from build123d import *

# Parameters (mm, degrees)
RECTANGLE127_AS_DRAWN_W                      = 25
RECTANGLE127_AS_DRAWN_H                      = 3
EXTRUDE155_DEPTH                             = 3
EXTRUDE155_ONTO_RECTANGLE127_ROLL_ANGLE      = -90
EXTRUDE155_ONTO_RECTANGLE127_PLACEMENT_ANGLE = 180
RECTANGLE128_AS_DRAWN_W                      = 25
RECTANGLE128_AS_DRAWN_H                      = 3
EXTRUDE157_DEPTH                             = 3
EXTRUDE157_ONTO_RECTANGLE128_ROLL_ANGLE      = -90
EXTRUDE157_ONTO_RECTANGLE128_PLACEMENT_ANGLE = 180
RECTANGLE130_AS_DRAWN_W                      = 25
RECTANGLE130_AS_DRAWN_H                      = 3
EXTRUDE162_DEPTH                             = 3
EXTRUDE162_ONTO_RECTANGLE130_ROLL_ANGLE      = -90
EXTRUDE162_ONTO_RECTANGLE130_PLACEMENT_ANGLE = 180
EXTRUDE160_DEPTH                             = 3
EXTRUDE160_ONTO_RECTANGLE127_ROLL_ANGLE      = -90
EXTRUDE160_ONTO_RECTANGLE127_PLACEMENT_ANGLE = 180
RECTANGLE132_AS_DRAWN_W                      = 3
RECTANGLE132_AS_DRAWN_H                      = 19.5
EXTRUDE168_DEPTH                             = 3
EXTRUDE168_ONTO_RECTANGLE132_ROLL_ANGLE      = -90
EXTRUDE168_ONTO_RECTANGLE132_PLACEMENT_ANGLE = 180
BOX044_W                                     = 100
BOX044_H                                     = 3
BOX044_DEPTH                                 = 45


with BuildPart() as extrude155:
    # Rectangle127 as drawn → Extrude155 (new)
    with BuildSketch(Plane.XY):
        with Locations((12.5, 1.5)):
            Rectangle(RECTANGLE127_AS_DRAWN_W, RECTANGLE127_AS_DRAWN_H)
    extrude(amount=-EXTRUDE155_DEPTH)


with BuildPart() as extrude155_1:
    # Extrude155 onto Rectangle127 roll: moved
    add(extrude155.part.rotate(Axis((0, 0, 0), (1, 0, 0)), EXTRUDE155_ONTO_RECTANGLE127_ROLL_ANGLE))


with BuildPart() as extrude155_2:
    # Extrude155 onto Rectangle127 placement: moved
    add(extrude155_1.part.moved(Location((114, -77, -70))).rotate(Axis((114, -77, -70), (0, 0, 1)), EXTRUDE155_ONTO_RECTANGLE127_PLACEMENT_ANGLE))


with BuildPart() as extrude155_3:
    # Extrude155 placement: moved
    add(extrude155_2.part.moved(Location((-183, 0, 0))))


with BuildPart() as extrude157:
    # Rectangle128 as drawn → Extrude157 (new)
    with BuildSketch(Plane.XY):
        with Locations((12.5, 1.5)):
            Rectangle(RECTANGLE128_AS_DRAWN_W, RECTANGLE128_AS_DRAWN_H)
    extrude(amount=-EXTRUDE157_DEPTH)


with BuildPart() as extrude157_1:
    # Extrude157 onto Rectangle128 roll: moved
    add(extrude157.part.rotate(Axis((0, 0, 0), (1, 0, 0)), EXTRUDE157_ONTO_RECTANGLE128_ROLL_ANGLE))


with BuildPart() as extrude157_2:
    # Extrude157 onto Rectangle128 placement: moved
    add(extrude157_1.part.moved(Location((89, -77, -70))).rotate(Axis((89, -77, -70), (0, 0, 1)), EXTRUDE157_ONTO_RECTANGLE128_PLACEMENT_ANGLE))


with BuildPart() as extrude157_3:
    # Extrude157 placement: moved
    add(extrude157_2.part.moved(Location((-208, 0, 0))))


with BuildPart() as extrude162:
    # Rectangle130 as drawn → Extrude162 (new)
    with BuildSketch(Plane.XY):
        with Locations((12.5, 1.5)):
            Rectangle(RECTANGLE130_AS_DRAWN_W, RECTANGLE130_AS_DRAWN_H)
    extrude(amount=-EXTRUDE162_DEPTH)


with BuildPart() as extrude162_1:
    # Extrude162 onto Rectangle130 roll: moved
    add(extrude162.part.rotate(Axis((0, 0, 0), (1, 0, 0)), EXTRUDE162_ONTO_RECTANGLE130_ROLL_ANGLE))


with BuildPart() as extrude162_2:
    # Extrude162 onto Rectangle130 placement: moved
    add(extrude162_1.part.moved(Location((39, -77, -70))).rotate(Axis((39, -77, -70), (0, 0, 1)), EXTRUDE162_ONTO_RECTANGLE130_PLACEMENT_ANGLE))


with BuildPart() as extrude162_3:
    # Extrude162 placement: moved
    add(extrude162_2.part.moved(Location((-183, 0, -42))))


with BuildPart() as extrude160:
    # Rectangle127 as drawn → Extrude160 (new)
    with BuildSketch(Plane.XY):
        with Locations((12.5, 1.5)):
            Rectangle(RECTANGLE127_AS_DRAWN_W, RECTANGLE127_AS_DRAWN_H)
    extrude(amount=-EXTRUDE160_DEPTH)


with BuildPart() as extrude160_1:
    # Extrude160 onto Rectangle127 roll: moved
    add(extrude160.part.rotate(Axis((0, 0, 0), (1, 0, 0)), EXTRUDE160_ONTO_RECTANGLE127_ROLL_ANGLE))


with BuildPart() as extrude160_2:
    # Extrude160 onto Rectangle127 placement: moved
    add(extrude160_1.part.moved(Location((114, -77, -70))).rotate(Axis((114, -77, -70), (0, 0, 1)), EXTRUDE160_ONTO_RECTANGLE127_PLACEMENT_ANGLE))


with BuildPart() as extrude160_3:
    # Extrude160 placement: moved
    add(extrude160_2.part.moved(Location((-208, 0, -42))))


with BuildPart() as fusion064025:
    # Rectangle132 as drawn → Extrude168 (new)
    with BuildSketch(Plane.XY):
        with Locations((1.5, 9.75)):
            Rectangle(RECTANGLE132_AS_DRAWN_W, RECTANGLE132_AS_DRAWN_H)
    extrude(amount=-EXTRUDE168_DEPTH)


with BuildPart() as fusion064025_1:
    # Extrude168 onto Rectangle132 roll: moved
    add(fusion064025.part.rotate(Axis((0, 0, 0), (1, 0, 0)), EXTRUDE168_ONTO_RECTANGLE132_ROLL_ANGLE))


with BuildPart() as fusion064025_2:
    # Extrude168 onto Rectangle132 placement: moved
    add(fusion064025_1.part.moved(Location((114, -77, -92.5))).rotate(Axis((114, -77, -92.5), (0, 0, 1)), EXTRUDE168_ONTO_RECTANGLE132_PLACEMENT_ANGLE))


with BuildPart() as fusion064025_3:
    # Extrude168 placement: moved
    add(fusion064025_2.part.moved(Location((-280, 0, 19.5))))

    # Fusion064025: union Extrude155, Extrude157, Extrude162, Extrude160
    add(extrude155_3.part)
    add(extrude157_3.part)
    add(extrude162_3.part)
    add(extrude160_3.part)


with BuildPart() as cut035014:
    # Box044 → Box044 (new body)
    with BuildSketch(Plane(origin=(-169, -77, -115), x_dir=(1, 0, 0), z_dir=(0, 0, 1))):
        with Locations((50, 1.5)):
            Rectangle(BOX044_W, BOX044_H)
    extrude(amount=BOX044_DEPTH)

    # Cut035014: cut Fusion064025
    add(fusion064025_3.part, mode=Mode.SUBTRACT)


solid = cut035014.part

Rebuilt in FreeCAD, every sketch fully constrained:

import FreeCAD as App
import Part
import Sketcher

V = App.Vector
Q = App.Units.Quantity


def add_polygon(sketch, points):
    """Adds a closed chain of lines whose ends are joined by coincident constraints."""
    first, n = sketch.GeometryCount, len(points)
    for a, b in zip(points, points[1:] + points[:1]):
        sketch.addGeometry(Part.LineSegment(App.Vector(*a, 0), App.Vector(*b, 0)), False)
    for i in range(n):
        sketch.addConstraint(Sketcher.Constraint("Coincident", first + i, 2, first + (i + 1) % n, 1))

doc = App.newDocument("Part")
body = doc.addObject("PartDesign::Body", "Body")

# Sketch on XY plane
sketch1 = body.newObject("Sketcher::SketchObject", "Sketch")
sketch1.AttachmentSupport = (doc.getObject("XY_Plane"), [""])
sketch1.MapMode = "FlatFace"
add_polygon(sketch1, [(0, 3), (0, 0), (25, 0), (25, 3)])  # lines 0-3
sketch1.addConstraint(Sketcher.Constraint("Vertical", 0))
sketch1.addConstraint(Sketcher.Constraint("Horizontal", 1))
sketch1.addConstraint(Sketcher.Constraint("Vertical", 2))
sketch1.addConstraint(Sketcher.Constraint("Horizontal", 3))
sketch1.addConstraint(Sketcher.Constraint("Coincident", 0, 2, -1, 1))
sketch1.addConstraint(Sketcher.Constraint("DistanceX", 1, 1, 1, 2, Q("25 mm")))
sketch1.addConstraint(Sketcher.Constraint("DistanceY", 0, 2, 0, 1, Q("3 mm")))
pad1 = body.newObject("PartDesign::Pad", "Pad")
pad1.Profile = sketch1
pad1.Length = 3
pad1.Reversed = True
body2 = doc.addObject("PartDesign::Body", "Body001")
doc.recompute()

body.Placement = App.Placement(V(0, 0, 0), App.Rotation(V(1, 0, 0), 270))
boolean = body2.newObject("PartDesign::Boolean", "Boolean")
boolean.Type = "Fuse"
boolean.addObjects([body])
body3 = doc.addObject("PartDesign::Body", "Body002")
doc.recompute()

body2.Placement = App.Placement(V(114, -77, -70), App.Rotation(V(0, 0, 1), 180))
boolean2 = body3.newObject("PartDesign::Boolean", "Boolean001")
boolean2.Type = "Fuse"
boolean2.addObjects([body2])
body4 = doc.addObject("PartDesign::Body", "Body003")
doc.recompute()

body3.Placement = App.Placement(V(-183, 0, 0), App.Rotation(V(0, 0, 1), 0))
boolean3 = body4.newObject("PartDesign::Boolean", "Boolean002")
boolean3.Type = "Fuse"
boolean3.addObjects([body3])
body5 = doc.addObject("PartDesign::Body", "Body004")

# Sketch on XY plane
sketch2 = body5.newObject("Sketcher::SketchObject", "Sketch001")
sketch2.AttachmentSupport = (doc.getObject("XY_Plane004"), [""])
sketch2.MapMode = "FlatFace"
add_polygon(sketch2, [(0, 3), (0, 0), (25, 0), (25, 3)])  # lines 0-3
sketch2.addConstraint(Sketcher.Constraint("Vertical", 0))
sketch2.addConstraint(Sketcher.Constraint("Horizontal", 1))
sketch2.addConstraint(Sketcher.Constraint("Vertical", 2))
sketch2.addConstraint(Sketcher.Constraint("Horizontal", 3))
sketch2.addConstraint(Sketcher.Constraint("Coincident", 0, 2, -1, 1))
sketch2.addConstraint(Sketcher.Constraint("DistanceX", 1, 1, 1, 2, Q("25 mm")))
sketch2.addConstraint(Sketcher.Constraint("DistanceY", 0, 2, 0, 1, Q("3 mm")))
pad2 = body5.newObject("PartDesign::Pad", "Pad001")
pad2.Profile = sketch2
pad2.Length = 3
pad2.Reversed = True
body6 = doc.addObject("PartDesign::Body", "Body005")
doc.recompute()

body5.Placement = App.Placement(V(0, 0, 0), App.Rotation(V(1, 0, 0), 270))
boolean4 = body6.newObject("PartDesign::Boolean", "Boolean003")
boolean4.Type = "Fuse"
boolean4.addObjects([body5])
body7 = doc.addObject("PartDesign::Body", "Body006")
doc.recompute()

body6.Placement = App.Placement(V(89, -77, -70), App.Rotation(V(0, 0, 1), 180))
boolean5 = body7.newObject("PartDesign::Boolean", "Boolean004")
boolean5.Type = "Fuse"
boolean5.addObjects([body6])
body8 = doc.addObject("PartDesign::Body", "Body007")
doc.recompute()

body7.Placement = App.Placement(V(-208, 0, 0), App.Rotation(V(0, 0, 1), 0))
boolean6 = body8.newObject("PartDesign::Boolean", "Boolean005")
boolean6.Type = "Fuse"
boolean6.addObjects([body7])
body9 = doc.addObject("PartDesign::Body", "Body008")

# Sketch on XY plane
sketch3 = body9.newObject("Sketcher::SketchObject", "Sketch002")
sketch3.AttachmentSupport = (doc.getObject("XY_Plane008"), [""])
sketch3.MapMode = "FlatFace"
add_polygon(sketch3, [(0, 3), (0, 0), (25, 0), (25, 3)])  # lines 0-3
sketch3.addConstraint(Sketcher.Constraint("Vertical", 0))
sketch3.addConstraint(Sketcher.Constraint("Horizontal", 1))
sketch3.addConstraint(Sketcher.Constraint("Vertical", 2))
sketch3.addConstraint(Sketcher.Constraint("Horizontal", 3))
sketch3.addConstraint(Sketcher.Constraint("Coincident", 0, 2, -1, 1))
sketch3.addConstraint(Sketcher.Constraint("DistanceX", 1, 1, 1, 2, Q("25 mm")))
sketch3.addConstraint(Sketcher.Constraint("DistanceY", 0, 2, 0, 1, Q("3 mm")))
pad3 = body9.newObject("PartDesign::Pad", "Pad002")
pad3.Profile = sketch3
pad3.Length = 3
pad3.Reversed = True
body10 = doc.addObject("PartDesign::Body", "Body009")
doc.recompute()

body9.Placement = App.Placement(V(0, 0, 0), App.Rotation(V(1, 0, 0), 270))
boolean7 = body10.newObject("PartDesign::Boolean", "Boolean006")
boolean7.Type = "Fuse"
boolean7.addObjects([body9])
body11 = doc.addObject("PartDesign::Body", "Body010")
doc.recompute()

body10.Placement = App.Placement(V(39, -77, -70), App.Rotation(V(0, 0, 1), 180))
boolean8 = body11.newObject("PartDesign::Boolean", "Boolean007")
boolean8.Type = "Fuse"
boolean8.addObjects([body10])
body12 = doc.addObject("PartDesign::Body", "Body011")
doc.recompute()

body11.Placement = App.Placement(V(-183, 0, -42), App.Rotation(V(0, 0, 1), 0))
boolean9 = body12.newObject("PartDesign::Boolean", "Boolean008")
boolean9.Type = "Fuse"
boolean9.addObjects([body11])
body13 = doc.addObject("PartDesign::Body", "Body012")

# Sketch on XY plane
sketch4 = body13.newObject("Sketcher::SketchObject", "Sketch003")
sketch4.AttachmentSupport = (doc.getObject("XY_Plane012"), [""])
sketch4.MapMode = "FlatFace"
add_polygon(sketch4, [(0, 3), (0, 0), (25, 0), (25, 3)])  # lines 0-3
sketch4.addConstraint(Sketcher.Constraint("Vertical", 0))
sketch4.addConstraint(Sketcher.Constraint("Horizontal", 1))
sketch4.addConstraint(Sketcher.Constraint("Vertical", 2))
sketch4.addConstraint(Sketcher.Constraint("Horizontal", 3))
sketch4.addConstraint(Sketcher.Constraint("Coincident", 0, 2, -1, 1))
sketch4.addConstraint(Sketcher.Constraint("DistanceX", 1, 1, 1, 2, Q("25 mm")))
sketch4.addConstraint(Sketcher.Constraint("DistanceY", 0, 2, 0, 1, Q("3 mm")))
pad4 = body13.newObject("PartDesign::Pad", "Pad003")
pad4.Profile = sketch4
pad4.Length = 3
pad4.Reversed = True
body14 = doc.addObject("PartDesign::Body", "Body013")
doc.recompute()

body13.Placement = App.Placement(V(0, 0, 0), App.Rotation(V(1, 0, 0), 270))
boolean10 = body14.newObject("PartDesign::Boolean", "Boolean009")
boolean10.Type = "Fuse"
boolean10.addObjects([body13])
body15 = doc.addObject("PartDesign::Body", "Body014")
doc.recompute()

body14.Placement = App.Placement(V(114, -77, -70), App.Rotation(V(0, 0, 1), 180))
boolean11 = body15.newObject("PartDesign::Boolean", "Boolean010")
boolean11.Type = "Fuse"
boolean11.addObjects([body14])
body16 = doc.addObject("PartDesign::Body", "Body015")
doc.recompute()

body15.Placement = App.Placement(V(-208, 0, -42), App.Rotation(V(0, 0, 1), 0))
boolean12 = body16.newObject("PartDesign::Boolean", "Boolean011")
boolean12.Type = "Fuse"
boolean12.addObjects([body15])
body17 = doc.addObject("PartDesign::Body", "Body016")

# Sketch on XY plane
sketch5 = body17.newObject("Sketcher::SketchObject", "Sketch004")
sketch5.AttachmentSupport = (doc.getObject("XY_Plane016"), [""])
sketch5.MapMode = "FlatFace"
add_polygon(sketch5, [(0, 19.5), (0, 0), (3, 0), (3, 19.5)])  # lines 0-3
sketch5.addConstraint(Sketcher.Constraint("Vertical", 0))
sketch5.addConstraint(Sketcher.Constraint("Horizontal", 1))
sketch5.addConstraint(Sketcher.Constraint("Vertical", 2))
sketch5.addConstraint(Sketcher.Constraint("Horizontal", 3))
sketch5.addConstraint(Sketcher.Constraint("Coincident", 0, 2, -1, 1))
sketch5.addConstraint(Sketcher.Constraint("DistanceX", 1, 1, 1, 2, Q("3 mm")))
sketch5.addConstraint(Sketcher.Constraint("DistanceY", 0, 2, 0, 1, Q("19.5 mm")))
pad5 = body17.newObject("PartDesign::Pad", "Pad004")
pad5.Profile = sketch5
pad5.Length = 3
pad5.Reversed = True
body18 = doc.addObject("PartDesign::Body", "Body017")
doc.recompute()

body17.Placement = App.Placement(V(0, 0, 0), App.Rotation(V(1, 0, 0), 270))
boolean13 = body18.newObject("PartDesign::Boolean", "Boolean012")
boolean13.Type = "Fuse"
boolean13.addObjects([body17])
body19 = doc.addObject("PartDesign::Body", "Body018")
doc.recompute()

body18.Placement = App.Placement(V(114, -77, -92.5), App.Rotation(V(0, 0, 1), 180))
boolean14 = body19.newObject("PartDesign::Boolean", "Boolean013")
boolean14.Type = "Fuse"
boolean14.addObjects([body18])
body20 = doc.addObject("PartDesign::Body", "Body019")
body20.AllowCompound = True
doc.recompute()

body19.Placement = App.Placement(V(-280, 0, 19.5), App.Rotation(V(0, 0, 1), 0))
boolean15 = body20.newObject("PartDesign::Boolean", "Boolean014")
boolean15.Type = "Fuse"
boolean15.addObjects([body19])
doc.recompute()

boolean16 = body20.newObject("PartDesign::Boolean", "Boolean015")
boolean16.Type = "Fuse"
boolean16.addObjects([body4])
doc.recompute()

boolean17 = body20.newObject("PartDesign::Boolean", "Boolean016")
boolean17.Type = "Fuse"
boolean17.addObjects([body8])
doc.recompute()

boolean18 = body20.newObject("PartDesign::Boolean", "Boolean017")
boolean18.Type = "Fuse"
boolean18.addObjects([body12])
doc.recompute()

boolean19 = body20.newObject("PartDesign::Boolean", "Boolean018")
boolean19.Type = "Fuse"
boolean19.addObjects([body16])
body21 = doc.addObject("PartDesign::Body", "Body020")

# Sketch on XY plane
sketch6 = body21.newObject("Sketcher::SketchObject", "Sketch005")
sketch6.AttachmentSupport = (doc.getObject("XY_Plane020"), [""])
sketch6.MapMode = "FlatFace"
sketch6.AttachmentOffset = App.Placement(V(0, 0, -115), App.Rotation())
add_polygon(sketch6, [(-169, -74), (-169, -77), (-69, -77), (-69, -74)])  # lines 0-3
sketch6.addConstraint(Sketcher.Constraint("Vertical", 0))
sketch6.addConstraint(Sketcher.Constraint("Horizontal", 1))
sketch6.addConstraint(Sketcher.Constraint("Vertical", 2))
sketch6.addConstraint(Sketcher.Constraint("Horizontal", 3))
sketch6.addConstraint(Sketcher.Constraint("DistanceX", 1, 1, 1, 2, Q("100 mm")))
sketch6.addConstraint(Sketcher.Constraint("DistanceY", 0, 2, 0, 1, Q("3 mm")))
sketch6.addConstraint(Sketcher.Constraint("DistanceX", 0, 2, -1, 1, Q("169 mm")))
sketch6.addConstraint(Sketcher.Constraint("DistanceY", 0, 2, -1, 1, Q("77 mm")))
pad6 = body21.newObject("PartDesign::Pad", "Pad005")
pad6.Profile = sketch6
pad6.Length = 45
doc.recompute()

boolean20 = body21.newObject("PartDesign::Boolean", "Boolean019")
boolean20.Type = "Cut"
boolean20.addObjects([body20])

doc.recompute()
